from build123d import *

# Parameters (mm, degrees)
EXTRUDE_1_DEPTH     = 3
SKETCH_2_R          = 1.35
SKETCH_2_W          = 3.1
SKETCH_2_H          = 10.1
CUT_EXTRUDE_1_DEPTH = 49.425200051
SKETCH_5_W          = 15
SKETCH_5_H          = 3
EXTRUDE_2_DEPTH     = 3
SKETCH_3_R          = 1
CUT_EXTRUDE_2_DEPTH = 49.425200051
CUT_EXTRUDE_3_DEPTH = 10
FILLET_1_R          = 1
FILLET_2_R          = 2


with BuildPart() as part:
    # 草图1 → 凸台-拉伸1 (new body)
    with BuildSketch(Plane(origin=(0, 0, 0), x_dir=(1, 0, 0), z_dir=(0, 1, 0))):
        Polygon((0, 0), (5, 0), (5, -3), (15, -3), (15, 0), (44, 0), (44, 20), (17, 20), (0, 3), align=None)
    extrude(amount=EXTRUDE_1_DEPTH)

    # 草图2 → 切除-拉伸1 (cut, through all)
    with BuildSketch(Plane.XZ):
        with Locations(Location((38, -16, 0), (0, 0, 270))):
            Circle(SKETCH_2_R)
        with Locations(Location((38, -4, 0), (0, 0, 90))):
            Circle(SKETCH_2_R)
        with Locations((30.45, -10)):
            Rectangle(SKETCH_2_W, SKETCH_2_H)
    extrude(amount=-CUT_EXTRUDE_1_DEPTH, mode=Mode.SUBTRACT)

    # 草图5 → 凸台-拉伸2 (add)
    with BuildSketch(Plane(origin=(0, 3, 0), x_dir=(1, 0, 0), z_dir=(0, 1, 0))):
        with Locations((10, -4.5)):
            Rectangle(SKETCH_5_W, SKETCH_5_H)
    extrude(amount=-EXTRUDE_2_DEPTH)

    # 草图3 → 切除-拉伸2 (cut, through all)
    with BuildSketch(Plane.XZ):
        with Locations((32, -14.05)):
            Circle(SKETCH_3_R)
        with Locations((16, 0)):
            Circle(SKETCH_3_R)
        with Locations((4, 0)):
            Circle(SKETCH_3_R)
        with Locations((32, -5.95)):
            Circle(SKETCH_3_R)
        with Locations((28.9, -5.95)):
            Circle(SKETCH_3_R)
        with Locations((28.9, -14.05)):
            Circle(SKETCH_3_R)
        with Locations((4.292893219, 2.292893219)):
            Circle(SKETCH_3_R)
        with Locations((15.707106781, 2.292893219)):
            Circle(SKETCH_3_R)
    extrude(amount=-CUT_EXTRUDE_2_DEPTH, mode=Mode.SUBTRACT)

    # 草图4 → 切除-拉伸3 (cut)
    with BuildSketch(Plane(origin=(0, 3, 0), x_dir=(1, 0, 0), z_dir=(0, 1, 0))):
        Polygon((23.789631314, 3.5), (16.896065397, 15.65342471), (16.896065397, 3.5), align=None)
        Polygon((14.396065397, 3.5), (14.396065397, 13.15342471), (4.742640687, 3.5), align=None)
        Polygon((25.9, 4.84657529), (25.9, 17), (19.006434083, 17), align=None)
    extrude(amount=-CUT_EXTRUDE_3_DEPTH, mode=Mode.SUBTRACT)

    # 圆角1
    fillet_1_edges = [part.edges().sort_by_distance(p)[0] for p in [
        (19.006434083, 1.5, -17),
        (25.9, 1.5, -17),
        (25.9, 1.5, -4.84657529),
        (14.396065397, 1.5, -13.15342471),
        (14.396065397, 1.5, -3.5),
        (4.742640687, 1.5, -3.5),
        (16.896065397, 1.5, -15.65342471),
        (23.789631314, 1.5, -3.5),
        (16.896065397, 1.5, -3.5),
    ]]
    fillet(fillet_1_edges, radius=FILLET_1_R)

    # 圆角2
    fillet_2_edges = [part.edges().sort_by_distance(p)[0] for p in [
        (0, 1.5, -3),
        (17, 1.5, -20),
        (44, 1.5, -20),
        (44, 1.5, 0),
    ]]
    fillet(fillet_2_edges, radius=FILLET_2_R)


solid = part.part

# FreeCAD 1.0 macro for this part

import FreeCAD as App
import Part
import Sketcher
from FreeCAD import Vector
Q = App.Units.Quantity


def edges_at(feature, points):
    """Names of the edges that pass closest to the given points."""
    edges = feature.Shape.Edges
    near = lambda p: min(range(len(edges)), key=lambda i: edges[i].distToShape(Part.Vertex(*p))[0])
    return sorted({f"Edge{near(p) + 1}" for p in points})


def add_polygon(sketch, points):
    """Adds a closed chain of lines whose ends are joined by coincident constraints."""
    first, n = sketch.GeometryCount, len(points)
    for a, b in zip(points, points[1:] + points[:1]):
        sketch.addGeometry(Part.LineSegment(App.Vector(*a, 0), App.Vector(*b, 0)), False)
    for i in range(n):
        sketch.addConstraint(Sketcher.Constraint("Coincident", first + i, 2, first + (i + 1) % n, 1))

doc = App.newDocument("Part")
body = doc.addObject("PartDesign::Body", "Body")

sketch1 = body.newObject("Sketcher::SketchObject", "Sketch")
sketch1.AttachmentSupport = (doc.getObject("XZ_Plane"), [""])
sketch1.MapMode = "FlatFace"
add_polygon(sketch1, [(0, 0), (5, 0), (5, 3), (15, 3), (15, 0), (44, 0), (44, -20), (17, -20), (0, -3)])
sketch1.addConstraint([
    Sketcher.Constraint("Horizontal", 0),
    Sketcher.Constraint("Vertical", 1),
    Sketcher.Constraint("Horizontal", 2),
    Sketcher.Constraint("Vertical", 3),
    Sketcher.Constraint("Horizontal", 4),
    Sketcher.Constraint("Vertical", 5),
    Sketcher.Constraint("Horizontal", 6),
    Sketcher.Constraint("Vertical", 8),
    Sketcher.Constraint("Coincident", 8, 2, -1, 1),
    Sketcher.Constraint("PointOnObject", 3, 2, -1),
    Sketcher.Constraint("Equal", 3, 8),
    Sketcher.Constraint("DistanceX", 0, 1, 0, 2, Q("5 mm")),
    Sketcher.Constraint("DistanceX", 2, 1, 2, 2, Q("10 mm")),
    Sketcher.Constraint("DistanceX", 4, 1, 4, 2, Q("29 mm")),
    Sketcher.Constraint("DistanceX", 6, 2, 6, 1, Q("27 mm")),
    Sketcher.Constraint("DistanceY", 1, 1, 1, 2, Q("3 mm")),
    Sketcher.Constraint("DistanceY", 5, 2, 5, 1, Q("20 mm")),
])
pad1 = body.newObject("PartDesign::Pad", "Pad")
pad1.Profile = sketch1
pad1.Length = 3
pad1.Reversed = True

sketch2 = body.newObject("Sketcher::SketchObject", "Sketch001")
sketch2.AttachmentSupport = (doc.getObject("XZ_Plane"), [""])
sketch2.MapMode = "FlatFace"
sketch2.addGeometry(Part.Circle(Vector(38, -16, 0), Vector(0, 0, 1), 1.4), False)
sketch2.addGeometry(Part.Circle(Vector(38, -4, 0), Vector(0, 0, 1), 1.4), False)
add_polygon(sketch2, [(28.9, -5), (28.9, -15.1), (32, -15.1), (32, -5)])
sketch2.addConstraint([
    Sketcher.Constraint("Vertical", 2),
    Sketcher.Constraint("Horizontal", 3),
    Sketcher.Constraint("Vertical", 4),
    Sketcher.Constraint("Horizontal", 5),
    Sketcher.Constraint("Equal", 0, 1),
    Sketcher.Constraint("Vertical", 0, 3, 1, 3),
    Sketcher.Constraint("Diameter", 0, Q("2.7 mm")),
    Sketcher.Constraint("DistanceX", 3, 1, 3, 2, Q("3.1 mm")),
    Sketcher.Constraint("DistanceY", 2, 2, 2, 1, Q("10.1 mm")),
    Sketcher.Constraint("DistanceX", -1, 1, 0, 3, Q("38 mm")),
    Sketcher.Constraint("DistanceY", 0, 3, -1, 1, Q("16 mm")),
    Sketcher.Constraint("DistanceY", 1, 3, -1, 1, Q("4 mm")),
    Sketcher.Constraint("DistanceX", -1, 1, 3, 2, Q("32 mm")),
    Sketcher.Constraint("DistanceY", 2, 2, -1, 1, Q("15.05 mm")),
])
pocket1 = body.newObject("PartDesign::Pocket", "Pocket")
pocket1.Profile = sketch2
pocket1.Type = "ThroughAll"

sketch3 = body.newObject("Sketcher::SketchObject", "Sketch002")
sketch3.AttachmentSupport = (doc.getObject("XZ_Plane"), [""])
sketch3.MapMode = "FlatFace"
sketch3.AttachmentOffset = App.Placement(Vector(0, 0, -3), App.Rotation())
add_polygon(sketch3, [(2.5, 3), (2.5, 6), (17.5, 6), (17.5, 3)])
sketch3.addConstraint([
    Sketcher.Constraint("Vertical", 0),
    Sketcher.Constraint("Horizontal", 1),
    Sketcher.Constraint("Vertical", 2),
    Sketcher.Constraint("Horizontal", 3),
    Sketcher.Constraint("DistanceX", 1, 1, 1, 2, Q("15 mm")),
    Sketcher.Constraint("DistanceY", 0, 1, 0, 2, Q("3 mm")),
    Sketcher.Constraint("DistanceY", -1, 1, 0, 2, Q("6 mm")),
    Sketcher.Constraint("DistanceX", -1, 1, 0, 2, Q("2.5 mm")),
])
pad2 = body.newObject("PartDesign::Pad", "Pad001")
pad2.Profile = sketch3
pad2.Length = 3

sketch4 = body.newObject("Sketcher::SketchObject", "Sketch003")
sketch4.AttachmentSupport = (doc.getObject("XZ_Plane"), [""])
sketch4.MapMode = "FlatFace"
sketch4.addGeometry([
    Part.Circle(Vector(32, -14.1, 0), Vector(0, 0, 1), 1),
    Part.Circle(Vector(16, 0, 0), Vector(0, 0, 1), 1),
    Part.Circle(Vector(4, 0, 0), Vector(0, 0, 1), 1),
    Part.Circle(Vector(32, -6, 0), Vector(0, 0, 1), 1),
    Part.Circle(Vector(28.9, -6, 0), Vector(0, 0, 1), 1),
    Part.Circle(Vector(28.9, -14.1, 0), Vector(0, 0, 1), 1),
    Part.Circle(Vector(4.3, 2.3, 0), Vector(0, 0, 1), 1),
    Part.Circle(Vector(15.7, 2.3, 0), Vector(0, 0, 1), 1),
], False)
sketch4.addConstraint([
    Sketcher.Constraint("Equal", 0, 1),
    Sketcher.Constraint("Equal", 1, 2),
    Sketcher.Constraint("Equal", 2, 3),
    Sketcher.Constraint("Equal", 3, 4),
    Sketcher.Constraint("Equal", 4, 5),
    Sketcher.Constraint("Equal", 5, 6),
    Sketcher.Constraint("Equal", 6, 7),
    Sketcher.Constraint("PointOnObject", 1, 3, -1),
    Sketcher.Constraint("PointOnObject", 2, 3, -1),
    Sketcher.Constraint("Horizontal", 3, 3, 4, 3),
    Sketcher.Constraint("Horizontal", 0, 3, 5, 3),
    Sketcher.Constraint("Horizontal", 6, 3, 7, 3),
    Sketcher.Constraint("Vertical", 0, 3, 3, 3),
    Sketcher.Constraint("Vertical", 4, 3, 5, 3),
    Sketcher.Constraint("Diameter", 0, Q("2 mm")),
    Sketcher.Constraint("DistanceX", -1, 1, 0, 3, Q("32 mm")),
    Sketcher.Constraint("DistanceX", -1, 1, 1, 3, Q("16 mm")),
    Sketcher.Constraint("DistanceX", -1, 1, 2, 3, Q("4 mm")),
    Sketcher.Constraint("DistanceX", -1, 1, 4, 3, Q("28.9 mm")),
    Sketcher.Constraint("DistanceY", 0, 3, 3, 3, Q("8.1 mm")),
    Sketcher.Constraint("DistanceY", 0, 3, -1, 1, Q("14.05 mm")),
    Sketcher.Constraint("DistanceX", -1, 1, 6, 3, Q("4.292893 mm")),
    Sketcher.Constraint("DistanceY", -1, 1, 6, 3, Q("2.292893 mm")),
    Sketcher.Constraint("DistanceX", -1, 1, 7, 3, Q("15.707107 mm")),
])
pocket2 = body.newObject("PartDesign::Pocket", "Pocket001")
pocket2.Profile = sketch4
pocket2.Type = "ThroughAll"

sketch5 = body.newObject("Sketcher::SketchObject", "Sketch004")
sketch5.AttachmentSupport = (doc.getObject("XZ_Plane"), [""])
sketch5.MapMode = "FlatFace"
sketch5.AttachmentOffset = App.Placement(Vector(0, 0, -3), App.Rotation())
add_polygon(sketch5, [(24, -4), (17, -16), (17, -4)])
add_polygon(sketch5, [(14, -4), (14, -13), (5, -4)])
add_polygon(sketch5, [(26, -5), (26, -17), (19, -17)])
sketch5.addConstraint([
    Sketcher.Constraint("Vertical", 1),
    Sketcher.Constraint("Horizontal", 2),
    Sketcher.Constraint("Vertical", 3),
    Sketcher.Constraint("Horizontal", 5),
    Sketcher.Constraint("Vertical", 6),
    Sketcher.Constraint("Horizontal", 7),
    Sketcher.Constraint("Parallel", 0, 8),
    Sketcher.Constraint("Horizontal", 2, 2, 4, 2),
    Sketcher.Constraint("Equal", 2, 7),
    Sketcher.Constraint("Equal", 5, 3),
    Sketcher.Constraint("DistanceY", 6, 2, -1, 1, Q("17 mm")),
    Sketcher.Constraint("DistanceY", 1, 2, -1, 1, Q("3.5 mm")),
    Sketcher.Constraint("DistanceX", -1, 1, 6, 2, Q("25.9 mm")),
    Sketcher.Constraint("DistanceX", 3, 2, 0, 2, Q("2.5 mm")),
    Sketcher.Constraint("DistanceY", 0, 2, 3, 2, Q("2.5 mm")),
    Sketcher.Constraint("DistanceX", 2, 1, 2, 2, Q("6.893566 mm")),
    Sketcher.Constraint("DistanceX", 5, 1, 5, 2, Q("9.653425 mm")),
    Sketcher.Constraint("DistanceX", -1, 1, 2, 2, Q("23.789631 mm")),
])
pocket3 = body.newObject("PartDesign::Pocket", "Pocket002")
pocket3.Profile = sketch5
pocket3.Length = 10
pocket3.Reversed = True
doc.recompute()

fillet = body.newObject("PartDesign::Fillet", "Fillet")
fillet.Base = (pocket3, edges_at(pocket3, [
    (19.006, 1.5, -17),
    (25.9, 1.5, -17),
    (25.9, 1.5, -4.847),
    (14.396, 1.5, -13.153),
    (14.396, 1.5, -3.5),
    (4.743, 1.5, -3.5),
    (16.896, 1.5, -15.653),
    (23.79, 1.5, -3.5),
    (16.896, 1.5, -3.5),
]))
fillet.Radius = 1
doc.recompute()

fillet2 = body.newObject("PartDesign::Fillet", "Fillet001")
fillet2.Base = (fillet, edges_at(fillet, [
    (0, 1.5, -3),
    (17, 1.5, -20),
    (44, 1.5, -20),
    (44, 1.5, 0),
]))
fillet2.Radius = 2

doc.recompute()
